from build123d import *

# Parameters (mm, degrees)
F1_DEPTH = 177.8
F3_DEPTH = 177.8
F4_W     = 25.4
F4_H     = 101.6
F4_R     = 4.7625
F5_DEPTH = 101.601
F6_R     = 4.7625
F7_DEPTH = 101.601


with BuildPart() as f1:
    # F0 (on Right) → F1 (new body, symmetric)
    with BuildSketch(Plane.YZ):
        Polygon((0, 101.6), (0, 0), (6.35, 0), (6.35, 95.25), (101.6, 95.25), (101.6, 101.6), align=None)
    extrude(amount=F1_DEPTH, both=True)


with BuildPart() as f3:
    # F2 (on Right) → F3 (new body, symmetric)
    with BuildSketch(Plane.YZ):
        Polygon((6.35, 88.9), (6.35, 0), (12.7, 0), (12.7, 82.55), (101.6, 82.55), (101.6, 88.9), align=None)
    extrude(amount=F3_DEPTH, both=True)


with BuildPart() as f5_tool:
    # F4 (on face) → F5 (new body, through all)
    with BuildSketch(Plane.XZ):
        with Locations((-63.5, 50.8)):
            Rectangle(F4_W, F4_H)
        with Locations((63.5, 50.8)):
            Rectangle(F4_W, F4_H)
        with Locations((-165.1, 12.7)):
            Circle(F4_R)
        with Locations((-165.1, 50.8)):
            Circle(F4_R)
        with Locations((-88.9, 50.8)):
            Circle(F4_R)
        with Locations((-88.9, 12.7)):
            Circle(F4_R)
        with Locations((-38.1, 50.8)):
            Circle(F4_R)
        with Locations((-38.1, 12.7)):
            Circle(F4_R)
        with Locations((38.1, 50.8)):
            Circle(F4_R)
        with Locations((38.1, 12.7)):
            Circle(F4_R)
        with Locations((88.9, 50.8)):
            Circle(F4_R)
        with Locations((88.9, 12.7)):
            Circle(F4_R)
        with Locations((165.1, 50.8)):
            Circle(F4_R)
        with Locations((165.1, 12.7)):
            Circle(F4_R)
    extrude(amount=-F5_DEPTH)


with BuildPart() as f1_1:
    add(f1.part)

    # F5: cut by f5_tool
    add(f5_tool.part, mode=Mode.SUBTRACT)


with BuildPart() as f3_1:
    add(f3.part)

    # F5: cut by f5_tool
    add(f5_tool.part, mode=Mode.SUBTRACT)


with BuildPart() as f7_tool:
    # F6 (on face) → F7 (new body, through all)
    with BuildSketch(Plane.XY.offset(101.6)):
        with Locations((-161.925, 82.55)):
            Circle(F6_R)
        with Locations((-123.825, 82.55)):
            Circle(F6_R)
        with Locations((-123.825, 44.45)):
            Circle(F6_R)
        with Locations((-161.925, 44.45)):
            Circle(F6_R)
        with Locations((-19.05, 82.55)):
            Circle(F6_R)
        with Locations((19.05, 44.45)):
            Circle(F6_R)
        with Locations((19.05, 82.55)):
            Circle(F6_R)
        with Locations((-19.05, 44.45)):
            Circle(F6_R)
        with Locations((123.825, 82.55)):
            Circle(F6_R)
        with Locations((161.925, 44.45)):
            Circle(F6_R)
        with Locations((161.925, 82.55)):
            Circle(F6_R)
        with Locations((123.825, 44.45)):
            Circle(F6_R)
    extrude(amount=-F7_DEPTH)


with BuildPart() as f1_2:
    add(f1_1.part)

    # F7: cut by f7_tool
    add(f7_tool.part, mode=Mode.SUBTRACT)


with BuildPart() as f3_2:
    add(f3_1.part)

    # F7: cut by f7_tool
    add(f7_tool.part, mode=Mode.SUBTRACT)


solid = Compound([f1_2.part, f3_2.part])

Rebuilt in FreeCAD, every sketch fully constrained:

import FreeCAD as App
import Part
import Sketcher
Q = App.Units.Quantity


def add_polygon(sketch, points):
    """Adds a closed chain of lines whose ends are joined by coincident constraints."""
    first, n = sketch.GeometryCount, len(points)
    for a, b in zip(points, points[1:] + points[:1]):
        sketch.addGeometry(Part.LineSegment(App.Vector(*a, 0), App.Vector(*b, 0)), False)
    for i in range(n):
        sketch.addConstraint(Sketcher.Constraint("Coincident", first + i, 2, first + (i + 1) % n, 1))

doc = App.newDocument("Part")
body = doc.addObject("PartDesign::Body", "Body")

# Sketch on YZ plane
sketch1 = body.newObject("Sketcher::SketchObject", "Sketch")
sketch1.AttachmentSupport = (doc.getObject("YZ_Plane"), [""])
sketch1.MapMode = "FlatFace"
add_polygon(sketch1, [(0, 102), (0, 0), (6, 0), (6, 95), (102, 95), (102, 102)])  # lines 0-5
sketch1.addConstraint(Sketcher.Constraint("Vertical", 0))
sketch1.addConstraint(Sketcher.Constraint("Horizontal", 1))
sketch1.addConstraint(Sketcher.Constraint("Vertical", 2))
sketch1.addConstraint(Sketcher.Constraint("Horizontal", 3))
sketch1.addConstraint(Sketcher.Constraint("Vertical", 4))
sketch1.addConstraint(Sketcher.Constraint("Horizontal", 5))
sketch1.addConstraint(Sketcher.Constraint("Coincident", 0, 2, -1, 1))
sketch1.addConstraint(Sketcher.Constraint("Equal", 5, 0))
sketch1.addConstraint(Sketcher.Constraint("Equal", 3, 2))
sketch1.addConstraint(Sketcher.Constraint("DistanceX", 5, 2, 5, 1, Q("4 in")))
sketch1.addConstraint(Sketcher.Constraint("DistanceX", 1, 1, 1, 2, Q("0.25 in")))
pad1 = body.newObject("PartDesign::Pad", "Pad")
pad1.Profile = sketch1
pad1.Length = Q("14 in")
pad1.Midplane = True
body2 = doc.addObject("PartDesign::Body", "Body001")

# Sketch on YZ plane
sketch2 = body2.newObject("Sketcher::SketchObject", "Sketch001")
sketch2.AttachmentSupport = (doc.getObject("YZ_Plane001"), [""])
sketch2.MapMode = "FlatFace"
add_polygon(sketch2, [(6, 89), (6, 0), (13, 0), (13, 83), (102, 83), (102, 89)])  # lines 0-5
sketch2.addConstraint(Sketcher.Constraint("Vertical", 0))
sketch2.addConstraint(Sketcher.Constraint("Horizontal", 1))
sketch2.addConstraint(Sketcher.Constraint("Vertical", 2))
sketch2.addConstraint(Sketcher.Constraint("Horizontal", 3))
sketch2.addConstraint(Sketcher.Constraint("Vertical", 4))
sketch2.addConstraint(Sketcher.Constraint("Horizontal", 5))
sketch2.addConstraint(Sketcher.Constraint("PointOnObject", 0, 2, -1))
sketch2.addConstraint(Sketcher.Constraint("Equal", 3, 0))
sketch2.addConstraint(Sketcher.Constraint("Equal", 1, 4))
sketch2.addConstraint(Sketcher.Constraint("DistanceX", 3, 1, 3, 2, Q("3.5 in")))
sketch2.addConstraint(Sketcher.Constraint("DistanceX", -1, 1, 3, 2, Q("4 in")))
sketch2.addConstraint(Sketcher.Constraint("DistanceX", 1, 1, 1, 2, Q("0.25 in")))
pad2 = body2.newObject("PartDesign::Pad", "Pad001")
pad2.Profile = sketch2
pad2.Length = Q("14 in")
pad2.Midplane = True
body3 = doc.addObject("PartDesign::Body", "Body002")
body3.AllowCompound = True

# Sketch on XZ plane
sketch3 = body3.newObject("Sketcher::SketchObject", "Sketch002")
sketch3.AttachmentSupport = (doc.getObject("XZ_Plane002"), [""])
sketch3.MapMode = "FlatFace"
add_polygon(sketch3, [(-76.2, 101.6), (-76.2, 0), (-50.8, 0), (-50.8, 101.6)])  # lines 0-3
add_polygon(sketch3, [(50.8, 101.6), (50.8, 0), (76.2, 0), (76.2, 101.6)])  # lines 4-7
sketch3.addGeometry(Part.Circle(App.Vector(-165.1, 12.7, 0), App.Vector(0, 0, 1), 4.8), False)  # 8
sketch3.addGeometry(Part.Circle(App.Vector(-165.1, 50.8, 0), App.Vector(0, 0, 1), 4.8), False)  # 9
sketch3.addGeometry(Part.Circle(App.Vector(-88.9, 50.8, 0), App.Vector(0, 0, 1), 4.8), False)  # 10
sketch3.addGeometry(Part.Circle(App.Vector(-88.9, 12.7, 0), App.Vector(0, 0, 1), 4.8), False)  # 11
sketch3.addGeometry(Part.Circle(App.Vector(-38.1, 50.8, 0), App.Vector(0, 0, 1), 4.8), False)  # 12
sketch3.addGeometry(Part.Circle(App.Vector(-38.1, 12.7, 0), App.Vector(0, 0, 1), 4.8), False)  # 13
sketch3.addGeometry(Part.Circle(App.Vector(38.1, 50.8, 0), App.Vector(0, 0, 1), 4.8), False)  # 14
sketch3.addGeometry(Part.Circle(App.Vector(38.1, 12.7, 0), App.Vector(0, 0, 1), 4.8), False)  # 15
sketch3.addGeometry(Part.Circle(App.Vector(88.9, 50.8, 0), App.Vector(0, 0, 1), 4.8), False)  # 16
sketch3.addGeometry(Part.Circle(App.Vector(88.9, 12.7, 0), App.Vector(0, 0, 1), 4.8), False)  # 17
sketch3.addGeometry(Part.Circle(App.Vector(165.1, 50.8, 0), App.Vector(0, 0, 1), 4.8), False)  # 18
sketch3.addGeometry(Part.Circle(App.Vector(165.1, 12.7, 0), App.Vector(0, 0, 1), 4.8), False)  # 19
sketch3.addConstraint(Sketcher.Constraint("Vertical", 0))
sketch3.addConstraint(Sketcher.Constraint("Horizontal", 1))
sketch3.addConstraint(Sketcher.Constraint("Vertical", 2))
sketch3.addConstraint(Sketcher.Constraint("Horizontal", 3))
sketch3.addConstraint(Sketcher.Constraint("Vertical", 4))
sketch3.addConstraint(Sketcher.Constraint("Horizontal", 5))
sketch3.addConstraint(Sketcher.Constraint("Vertical", 6))
sketch3.addConstraint(Sketcher.Constraint("Horizontal", 7))
sketch3.addConstraint(Sketcher.Constraint("Equal", 8, 9))
sketch3.addConstraint(Sketcher.Constraint("Equal", 9, 10))
sketch3.addConstraint(Sketcher.Constraint("Equal", 10, 11))
sketch3.addConstraint(Sketcher.Constraint("Equal", 11, 12))
sketch3.addConstraint(Sketcher.Constraint("Equal", 12, 13))
sketch3.addConstraint(Sketcher.Constraint("Equal", 13, 14))
sketch3.addConstraint(Sketcher.Constraint("Equal", 14, 15))
sketch3.addConstraint(Sketcher.Constraint("Equal", 15, 16))
sketch3.addConstraint(Sketcher.Constraint("Equal", 16, 17))
sketch3.addConstraint(Sketcher.Constraint("Equal", 17, 18))
sketch3.addConstraint(Sketcher.Constraint("Equal", 18, 19))
sketch3.addConstraint(Sketcher.Constraint("Symmetric", 1, 2, 4, 2, -1, 1))
sketch3.addConstraint(Sketcher.Constraint("Symmetric", 12, 3, 14, 3, -2))
sketch3.addConstraint(Sketcher.Constraint("Symmetric", 13, 3, 15, 3, -2))
sketch3.addConstraint(Sketcher.Constraint("Symmetric", 10, 3, 16, 3, -2))
sketch3.addConstraint(Sketcher.Constraint("Symmetric", 11, 3, 17, 3, -2))
sketch3.addConstraint(Sketcher.Constraint("Symmetric", 9, 3, 18, 3, -2))
sketch3.addConstraint(Sketcher.Constraint("Symmetric", 8, 3, 19, 3, -2))
sketch3.addConstraint(Sketcher.Constraint("Symmetric", 0, 2, 5, 2, -2))
sketch3.addConstraint(Sketcher.Constraint("Horizontal", 9, 3, 10, 3))
sketch3.addConstraint(Sketcher.Constraint("Horizontal", 8, 3, 11, 3))
sketch3.addConstraint(Sketcher.Constraint("Horizontal", 10, 3, 12, 3))
sketch3.addConstraint(Sketcher.Constraint("Horizontal", 11, 3, 13, 3))
sketch3.addConstraint(Sketcher.Constraint("Horizontal", 3, 2, 6, 2))
sketch3.addConstraint(Sketcher.Constraint("Vertical", 8, 3, 9, 3))
sketch3.addConstraint(Sketcher.Constraint("Vertical", 10, 3, 11, 3))
sketch3.addConstraint(Sketcher.Constraint("Vertical", 12, 3, 13, 3))
sketch3.addConstraint(Sketcher.Constraint("DistanceX", 1, 1, 1, 2, Q("1 in")))
sketch3.addConstraint(Sketcher.Constraint("DistanceY", 0, 2, 0, 1, Q("4 in")))
sketch3.addConstraint(Sketcher.Constraint("Diameter", 8, Q("0.375 in")))
sketch3.addConstraint(Sketcher.Constraint("DistanceY", -1, 1, 9, 3, Q("2 in")))
sketch3.addConstraint(Sketcher.Constraint("DistanceX", 0, 2, -1, 1, Q("3 in")))
sketch3.addConstraint(Sketcher.Constraint("DistanceX", 9, 3, 10, 3, Q("3 in")))
sketch3.addConstraint(Sketcher.Constraint("DistanceX", 10, 3, 12, 3, Q("2 in")))
sketch3.addConstraint(Sketcher.Constraint("DistanceX", 12, 3, 14, 3, Q("3 in")))
sketch3.addConstraint(Sketcher.Constraint("DistanceY", -1, 1, 8, 3, Q("0.5 in")))
pad3 = body3.newObject("PartDesign::Pad", "Pad002")
pad3.Profile = sketch3
pad3.Length = 101.601
pad3.Reversed = True
body.AllowCompound = True
doc.recompute()

body4 = doc.addObject("PartDesign::Body", "Body003")
body4.BaseFeature = body3
boolean = body.newObject("PartDesign::Boolean", "Boolean")
boolean.Type = "Cut"
boolean.addObjects([body4])
doc.recompute()
body2.AllowCompound = True
doc.recompute()

boolean2 = body2.newObject("PartDesign::Boolean", "Boolean001")
boolean2.Type = "Cut"
boolean2.addObjects([body3])
body5 = doc.addObject("PartDesign::Body", "Body004")
body5.AllowCompound = True

# Sketch on XY plane
sketch4 = body5.newObject("Sketcher::SketchObject", "Sketch003")
sketch4.AttachmentSupport = (doc.getObject("XY_Plane004"), [""])
sketch4.MapMode = "FlatFace"
sketch4.AttachmentOffset = App.Placement(App.Vector(0, 0, 4 * 25.4), App.Rotation())
sketch4.addGeometry(Part.Circle(App.Vector(-161.9, 82.5, 0), App.Vector(0, 0, 1), 4.8), False)
sketch4.addGeometry(Part.Circle(App.Vector(-123.8, 82.5, 0), App.Vector(0, 0, 1), 4.8), False)
sketch4.addGeometry(Part.Circle(App.Vector(-123.8, 44.5, 0), App.Vector(0, 0, 1), 4.8), False)
sketch4.addGeometry(Part.Circle(App.Vector(-161.9, 44.5, 0), App.Vector(0, 0, 1), 4.8), False)
sketch4.addGeometry(Part.Circle(App.Vector(-19.1, 82.5, 0), App.Vector(0, 0, 1), 4.8), False)
sketch4.addGeometry(Part.Circle(App.Vector(19.1, 44.5, 0), App.Vector(0, 0, 1), 4.8), False)
sketch4.addGeometry(Part.Circle(App.Vector(19.1, 82.5, 0), App.Vector(0, 0, 1), 4.8), False)
sketch4.addGeometry(Part.Circle(App.Vector(-19.1, 44.5, 0), App.Vector(0, 0, 1), 4.8), False)
sketch4.addGeometry(Part.Circle(App.Vector(123.8, 82.5, 0), App.Vector(0, 0, 1), 4.8), False)
sketch4.addGeometry(Part.Circle(App.Vector(161.9, 44.5, 0), App.Vector(0, 0, 1), 4.8), False)
sketch4.addGeometry(Part.Circle(App.Vector(161.9, 82.5, 0), App.Vector(0, 0, 1), 4.8), False)
sketch4.addGeometry(Part.Circle(App.Vector(123.8, 44.5, 0), App.Vector(0, 0, 1), 4.8), False)
sketch4.addConstraint(Sketcher.Constraint("Equal", 0, 1))
sketch4.addConstraint(Sketcher.Constraint("Equal", 1, 2))
sketch4.addConstraint(Sketcher.Constraint("Equal", 2, 3))
sketch4.addConstraint(Sketcher.Constraint("Equal", 3, 4))
sketch4.addConstraint(Sketcher.Constraint("Equal", 4, 5))
sketch4.addConstraint(Sketcher.Constraint("Equal", 5, 6))
sketch4.addConstraint(Sketcher.Constraint("Equal", 6, 7))
sketch4.addConstraint(Sketcher.Constraint("Equal", 7, 8))
sketch4.addConstraint(Sketcher.Constraint("Equal", 8, 9))
sketch4.addConstraint(Sketcher.Constraint("Equal", 9, 10))
sketch4.addConstraint(Sketcher.Constraint("Equal", 10, 11))
sketch4.addConstraint(Sketcher.Constraint("Symmetric", 4, 3, 6, 3, -2))
sketch4.addConstraint(Sketcher.Constraint("Symmetric", 5, 3, 7, 3, -2))
sketch4.addConstraint(Sketcher.Constraint("Symmetric", 1, 3, 8, 3, -2))
sketch4.addConstraint(Sketcher.Constraint("Symmetric", 3, 3, 9, 3, -2))
sketch4.addConstraint(Sketcher.Constraint("Symmetric", 0, 3, 10, 3, -2))
sketch4.addConstraint(Sketcher.Constraint("Symmetric", 2, 3, 11, 3, -2))
sketch4.addConstraint(Sketcher.Constraint("Horizontal", 0, 3, 1, 3))
sketch4.addConstraint(Sketcher.Constraint("Horizontal", 2, 3, 3, 3))
sketch4.addConstraint(Sketcher.Constraint("Horizontal", 1, 3, 4, 3))
sketch4.addConstraint(Sketcher.Constraint("Horizontal", 3, 3, 5, 3))
sketch4.addConstraint(Sketcher.Constraint("Vertical", 1, 3, 2, 3))
sketch4.addConstraint(Sketcher.Constraint("Vertical", 0, 3, 3, 3))
sketch4.addConstraint(Sketcher.Constraint("Vertical", 5, 3, 6, 3))
sketch4.addConstraint(Sketcher.Constraint("Diameter", 0, Q("0.375 in")))
sketch4.addConstraint(Sketcher.Constraint("DistanceX", 0, 3, 1, 3, Q("1.5 in")))
sketch4.addConstraint(Sketcher.Constraint("DistanceY", 2, 3, 1, 3, Q("1.5 in")))
sketch4.addConstraint(Sketcher.Constraint("DistanceX", 4, 3, 5, 3, Q("1.5 in")))
sketch4.addConstraint(Sketcher.Constraint("DistanceY", -1, 1, 0, 3, Q("3.25 in")))
sketch4.addConstraint(Sketcher.Constraint("DistanceX", 1, 3, 8, 3, Q("9.75 in")))
pad4 = body5.newObject("PartDesign::Pad", "Pad003")
pad4.Profile = sketch4
pad4.Length = 101.601
pad4.Reversed = True
body.AllowCompound = True
doc.recompute()

body6 = doc.addObject("PartDesign::Body", "Body005")
body6.BaseFeature = body5
boolean3 = body.newObject("PartDesign::Boolean", "Boolean002")
boolean3.Type = "Cut"
boolean3.addObjects([body6])
doc.recompute()
body2.AllowCompound = True
doc.recompute()

boolean4 = body2.newObject("PartDesign::Boolean", "Boolean003")
boolean4.Type = "Cut"
boolean4.addObjects([body5])

doc.recompute()
